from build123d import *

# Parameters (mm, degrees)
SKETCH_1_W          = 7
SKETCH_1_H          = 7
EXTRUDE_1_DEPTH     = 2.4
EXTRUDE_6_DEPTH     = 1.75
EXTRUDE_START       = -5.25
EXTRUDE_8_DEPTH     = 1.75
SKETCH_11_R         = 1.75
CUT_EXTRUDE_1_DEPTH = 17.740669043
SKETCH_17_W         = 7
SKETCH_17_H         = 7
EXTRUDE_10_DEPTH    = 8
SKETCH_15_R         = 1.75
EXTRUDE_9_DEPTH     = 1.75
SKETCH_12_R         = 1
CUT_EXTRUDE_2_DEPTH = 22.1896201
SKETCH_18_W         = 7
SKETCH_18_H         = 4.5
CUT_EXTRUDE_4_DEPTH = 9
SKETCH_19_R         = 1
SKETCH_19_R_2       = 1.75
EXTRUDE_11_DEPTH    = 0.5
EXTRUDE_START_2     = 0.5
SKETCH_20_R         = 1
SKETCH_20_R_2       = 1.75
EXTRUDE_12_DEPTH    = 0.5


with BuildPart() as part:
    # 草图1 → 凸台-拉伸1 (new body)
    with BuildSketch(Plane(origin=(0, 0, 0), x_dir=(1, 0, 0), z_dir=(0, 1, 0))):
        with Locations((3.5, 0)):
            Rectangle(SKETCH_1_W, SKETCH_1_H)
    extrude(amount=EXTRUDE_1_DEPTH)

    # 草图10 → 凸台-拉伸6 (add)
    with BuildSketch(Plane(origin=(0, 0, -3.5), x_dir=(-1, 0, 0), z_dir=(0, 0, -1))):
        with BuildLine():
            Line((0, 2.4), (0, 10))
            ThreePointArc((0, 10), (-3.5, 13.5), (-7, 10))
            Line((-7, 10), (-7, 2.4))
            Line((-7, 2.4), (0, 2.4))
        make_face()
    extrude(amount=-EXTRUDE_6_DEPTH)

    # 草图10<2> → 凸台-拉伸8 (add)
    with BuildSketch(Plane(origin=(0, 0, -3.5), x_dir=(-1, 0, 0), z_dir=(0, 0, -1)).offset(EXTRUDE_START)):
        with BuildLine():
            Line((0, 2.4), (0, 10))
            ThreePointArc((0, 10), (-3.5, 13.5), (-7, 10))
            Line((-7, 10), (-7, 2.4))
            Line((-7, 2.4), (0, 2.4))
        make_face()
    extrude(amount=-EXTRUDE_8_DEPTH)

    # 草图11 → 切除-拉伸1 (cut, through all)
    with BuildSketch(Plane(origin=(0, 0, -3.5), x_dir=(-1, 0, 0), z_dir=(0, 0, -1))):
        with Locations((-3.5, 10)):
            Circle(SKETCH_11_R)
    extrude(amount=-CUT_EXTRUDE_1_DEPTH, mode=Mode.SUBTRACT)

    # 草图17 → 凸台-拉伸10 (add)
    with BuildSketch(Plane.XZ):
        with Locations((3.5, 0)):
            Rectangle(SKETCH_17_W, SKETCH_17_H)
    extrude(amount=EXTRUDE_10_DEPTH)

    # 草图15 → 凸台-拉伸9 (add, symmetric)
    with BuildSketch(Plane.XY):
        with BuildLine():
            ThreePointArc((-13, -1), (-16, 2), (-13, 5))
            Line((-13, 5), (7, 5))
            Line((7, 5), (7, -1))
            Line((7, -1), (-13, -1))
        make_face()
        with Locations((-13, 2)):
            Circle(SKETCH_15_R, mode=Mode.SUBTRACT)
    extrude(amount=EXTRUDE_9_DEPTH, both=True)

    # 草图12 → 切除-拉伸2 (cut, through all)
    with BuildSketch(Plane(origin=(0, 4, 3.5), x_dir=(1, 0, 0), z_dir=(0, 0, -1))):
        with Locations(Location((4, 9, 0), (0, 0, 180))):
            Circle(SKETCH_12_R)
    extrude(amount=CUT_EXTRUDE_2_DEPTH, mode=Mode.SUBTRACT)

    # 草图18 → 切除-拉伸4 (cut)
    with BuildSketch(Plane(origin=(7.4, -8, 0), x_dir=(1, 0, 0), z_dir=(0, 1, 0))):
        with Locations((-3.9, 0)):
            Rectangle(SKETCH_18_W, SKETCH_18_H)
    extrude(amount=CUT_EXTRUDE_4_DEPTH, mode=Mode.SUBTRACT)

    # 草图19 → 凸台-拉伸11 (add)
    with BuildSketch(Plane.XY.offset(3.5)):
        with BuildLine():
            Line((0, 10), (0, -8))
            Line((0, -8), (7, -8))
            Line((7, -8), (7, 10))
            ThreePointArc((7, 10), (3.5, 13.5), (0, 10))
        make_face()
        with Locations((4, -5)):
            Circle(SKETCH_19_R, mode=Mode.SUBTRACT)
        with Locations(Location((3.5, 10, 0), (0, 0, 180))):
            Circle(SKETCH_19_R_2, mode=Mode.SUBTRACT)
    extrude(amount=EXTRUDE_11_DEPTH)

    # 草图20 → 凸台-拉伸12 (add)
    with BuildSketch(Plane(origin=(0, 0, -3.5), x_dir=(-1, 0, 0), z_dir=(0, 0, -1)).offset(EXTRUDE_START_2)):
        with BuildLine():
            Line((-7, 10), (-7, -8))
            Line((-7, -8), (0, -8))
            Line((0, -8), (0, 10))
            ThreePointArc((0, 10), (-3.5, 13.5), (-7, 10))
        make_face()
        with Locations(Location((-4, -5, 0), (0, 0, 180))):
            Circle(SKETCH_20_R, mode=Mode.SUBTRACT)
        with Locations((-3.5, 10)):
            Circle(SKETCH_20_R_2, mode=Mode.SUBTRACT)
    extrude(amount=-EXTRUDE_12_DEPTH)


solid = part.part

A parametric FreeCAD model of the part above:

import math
import FreeCAD as App
import Part
import Sketcher


def add_polygon(sketch, points):
    """Adds a closed chain of lines whose ends are joined by coincident constraints."""
    first, n = sketch.GeometryCount, len(points)
    for a, b in zip(points, points[1:] + points[:1]):
        sketch.addGeometry(Part.LineSegment(App.Vector(*a, 0), App.Vector(*b, 0)), False)
    for i in range(n):
        sketch.addConstraint(Sketcher.Constraint("Coincident", first + i, 2, first + (i + 1) % n, 1))

doc = App.newDocument("Part")
params = doc.addObject("Spreadsheet::Sheet", "Params")
for row, (alias, value) in enumerate([
    ("sketch1_width", "7 mm"),
    ("pad1_length", "2.4 mm"),
    ("sketch2_radius", "3.5 mm"),
    ("sketch2_height", "7.6 mm"),
    ("pad2_length", "1.75 mm"),
    ("sketch3_radius", "3.5 mm"),
    ("sketch3_height", "7.6 mm"),
    ("pad3_length", "1.75 mm"),
    ("sketch4_diameter", "3.5 mm"),
    ("sketch5_width", "7 mm"),
    ("pad4_length", "8 mm"),
    ("sketch6_radius", "3 mm"),
    ("sketch6_diameter", "3.5 mm"),
    ("sketch6_width", "20 mm"),
    ("pad5_length", "3.5 mm"),
    ("sketch7_diameter", "2 mm"),
    ("sketch8_width", "7 mm"),
    ("sketch8_height", "4.5 mm"),
    ("pocket3_length", "9 mm"),
    ("sketch9_diameter", "2 mm"),
    ("sketch9_diameter2", "3.5 mm"),
    ("sketch9_radius", "3.5 mm"),
    ("sketch9_height", "18 mm"),
    ("pad6_length", "0.5 mm"),
    ("sketch10_diameter", "2 mm"),
    ("sketch10_diameter2", "3.5 mm"),
    ("sketch10_radius", "3.5 mm"),
    ("sketch10_height", "18 mm"),
    ("pad7_length", "0.5 mm"),
], start=1):
    params.set(f"A{row}", alias)
    params.set(f"B{row}", "=" + value)
    params.setAlias(f"B{row}", alias)

body = doc.addObject("PartDesign::Body", "Body")

# Sketch on XZ plane
sketch1 = doc.addObject("Sketcher::SketchObject", "Sketch")
body.addObject(sketch1)
sketch1.AttachmentSupport = (doc.XZ_Plane, [""])
sketch1.MapMode = "FlatFace"
add_polygon(sketch1, [(0, -4), (0, 4), (7, 4), (7, -4)])  # lines 0-3
sketch1.addConstraint([
    Sketcher.Constraint("Vertical", 0),
    Sketcher.Constraint("Horizontal", 1),
    Sketcher.Constraint("Vertical", 2),
    Sketcher.Constraint("Horizontal", 3),
    Sketcher.Constraint("Symmetric", 0, 2, 3, 2, -1, 1),
    Sketcher.Constraint("Equal", 3, 0),
    Sketcher.Constraint("DistanceX", 1, 1, 1, 2, 7.0),
])
sketch1.setExpression("Constraints[10]", "Params.sketch1_width")
pad1 = doc.addObject("PartDesign::Pad", "Pad")
body.addObject(pad1)
pad1.Profile = sketch1
pad1.setExpression("Length", "Params.pad1_length")
pad1.Reversed = True

# Sketch on XY plane
sketch2 = doc.addObject("Sketcher::SketchObject", "Sketch001")
body.addObject(sketch2)
sketch2.AttachmentSupport = (doc.XY_Plane, [""])
sketch2.MapMode = "FlatFace"
sketch2.AttachmentOffset = App.Placement(App.Vector(0, 0, -3.5), App.Rotation())
sketch2.addGeometry([
    Part.LineSegment(App.Vector(0, 2.4, 0), App.Vector(0, 10, 0)),
    Part.ArcOfCircle(Part.Circle(App.Vector(3.5, 10, 0), App.Vector(0, 0, 1), 3.5), math.radians(0), math.radians(180)),
    Part.LineSegment(App.Vector(7, 10, 0), App.Vector(7, 2.4, 0)),
    Part.LineSegment(App.Vector(7, 2.4, 0), App.Vector(0, 2.4, 0)),
], False)
sketch2.addConstraint([
    Sketcher.Constraint("Tangent", 0, 2, 1, 2),
    Sketcher.Constraint("Tangent", 1, 1, 2, 1),
    Sketcher.Constraint("Coincident", 2, 2, 3, 1),
    Sketcher.Constraint("Coincident", 3, 2, 0, 1),
    Sketcher.Constraint("Vertical", 0),
    Sketcher.Constraint("Vertical", 2),
    Sketcher.Constraint("Horizontal", 3),
    Sketcher.Constraint("PointOnObject", 0, 2, -2),
    Sketcher.Constraint("Radius", 1, 3.5),
    Sketcher.Constraint("DistanceY", 0, 1, 0, 2, 7.6),
    Sketcher.Constraint("DistanceY", -1, 1, 1, 3, 10.0),
])
sketch2.setExpression("Constraints[8]", "Params.sketch2_radius")
sketch2.setExpression("Constraints[9]", "Params.sketch2_height")
pad2 = doc.addObject("PartDesign::Pad", "Pad001")
body.addObject(pad2)
pad2.Profile = sketch2
pad2.setExpression("Length", "Params.pad2_length")

# Sketch on XY plane
sketch3 = doc.addObject("Sketcher::SketchObject", "Sketch002")
body.addObject(sketch3)
sketch3.AttachmentSupport = (doc.XY_Plane, [""])
sketch3.MapMode = "FlatFace"
sketch3.AttachmentOffset = App.Placement(App.Vector(0, 0, 1.75), App.Rotation())
sketch3.addGeometry([
    Part.LineSegment(App.Vector(0, 2.4, 0), App.Vector(0, 10, 0)),
    Part.ArcOfCircle(Part.Circle(App.Vector(3.5, 10, 0), App.Vector(0, 0, 1), 3.5), math.radians(0), math.radians(180)),
    Part.LineSegment(App.Vector(7, 10, 0), App.Vector(7, 2.4, 0)),
    Part.LineSegment(App.Vector(7, 2.4, 0), App.Vector(0, 2.4, 0)),
], False)
sketch3.addConstraint([
    Sketcher.Constraint("Tangent", 0, 2, 1, 2),
    Sketcher.Constraint("Tangent", 1, 1, 2, 1),
    Sketcher.Constraint("Coincident", 2, 2, 3, 1),
    Sketcher.Constraint("Coincident", 3, 2, 0, 1),
    Sketcher.Constraint("Vertical", 0),
    Sketcher.Constraint("Vertical", 2),
    Sketcher.Constraint("Horizontal", 3),
    Sketcher.Constraint("PointOnObject", 0, 2, -2),
    Sketcher.Constraint("Radius", 1, 3.5),
    Sketcher.Constraint("DistanceY", 0, 1, 0, 2, 7.6),
    Sketcher.Constraint("DistanceY", -1, 1, 1, 3, 10.0),
])
sketch3.setExpression("Constraints[8]", "Params.sketch3_radius")
sketch3.setExpression("Constraints[9]", "Params.sketch3_height")
pad3 = doc.addObject("PartDesign::Pad", "Pad002")
body.addObject(pad3)
pad3.Profile = sketch3
pad3.setExpression("Length", "Params.pad3_length")

# Sketch on XY plane
sketch4 = doc.addObject("Sketcher::SketchObject", "Sketch003")
body.addObject(sketch4)
sketch4.AttachmentSupport = (doc.XY_Plane, [""])
sketch4.MapMode = "FlatFace"
sketch4.AttachmentOffset = App.Placement(App.Vector(0, 0, -3.5), App.Rotation())
sketch4.addGeometry(Part.Circle(App.Vector(3.5, 10, 0), App.Vector(0, 0, 1), 1.8), False)
sketch4.addConstraint([
    Sketcher.Constraint("Diameter", 0, 3.5),
    Sketcher.Constraint("DistanceY", -1, 1, 0, 3, 10.0),
    Sketcher.Constraint("DistanceX", -1, 1, 0, 3, 3.5),
])
sketch4.setExpression("Constraints[0]", "Params.sketch4_diameter")
pocket1 = doc.addObject("PartDesign::Pocket", "Pocket")
body.addObject(pocket1)
pocket1.Profile = sketch4
pocket1.Type = "ThroughAll"
pocket1.Reversed = True

# Sketch on XZ plane
sketch5 = doc.addObject("Sketcher::SketchObject", "Sketch004")
body.addObject(sketch5)
sketch5.AttachmentSupport = (doc.XZ_Plane, [""])
sketch5.MapMode = "FlatFace"
add_polygon(sketch5, [(0, 4), (0, -4), (7, -4), (7, 4)])  # lines 0-3
sketch5.addConstraint([
    Sketcher.Constraint("Vertical", 0),
    Sketcher.Constraint("Horizontal", 1),
    Sketcher.Constraint("Vertical", 2),
    Sketcher.Constraint("Horizontal", 3),
    Sketcher.Constraint("Symmetric", 0, 2, 3, 2, -1, 1),
    Sketcher.Constraint("Equal", 3, 0),
    Sketcher.Constraint("DistanceX", 1, 1, 1, 2, 7.0),
])
sketch5.setExpression("Constraints[10]", "Params.sketch5_width")
pad4 = doc.addObject("PartDesign::Pad", "Pad003")
body.addObject(pad4)
pad4.Profile = sketch5
pad4.setExpression("Length", "Params.pad4_length")

# Sketch on XY plane
sketch6 = doc.addObject("Sketcher::SketchObject", "Sketch005")
body.addObject(sketch6)
sketch6.AttachmentSupport = (doc.XY_Plane, [""])
sketch6.MapMode = "FlatFace"
sketch6.addGeometry([
    Part.ArcOfCircle(Part.Circle(App.Vector(-13, 2, 0), App.Vector(0, 0, 1), 3), math.radians(90), math.radians(270)),  # 0
    Part.LineSegment(App.Vector(-13, -1, 0), App.Vector(7, -1, 0)),  # 1
    Part.LineSegment(App.Vector(7, -1, 0), App.Vector(7, 5, 0)),  # 2
    Part.LineSegment(App.Vector(7, 5, 0), App.Vector(-13, 5, 0)),  # 3
    Part.Circle(App.Vector(-13, 2, 0), App.Vector(0, 0, 1), 1.8),  # 4
], False)
sketch6.addConstraint([
    Sketcher.Constraint("Tangent", 0, 2, 1, 1),
    Sketcher.Constraint("Coincident", 1, 2, 2, 1),
    Sketcher.Constraint("Coincident", 2, 2, 3, 1),
    Sketcher.Constraint("Tangent", 3, 2, 0, 1),
    Sketcher.Constraint("Horizontal", 1),
    Sketcher.Constraint("Vertical", 2),
    Sketcher.Constraint("Horizontal", 3),
    Sketcher.Constraint("Coincident", 4, 3, 0, 3),
    Sketcher.Constraint("Radius", 0, 3.0),
    Sketcher.Constraint("Diameter", 4, 3.5),
    Sketcher.Constraint("DistanceX", 1, 1, 1, 2, 20.0),
    Sketcher.Constraint("DistanceX", 0, 3, -1, 1, 13.0),
    Sketcher.Constraint("DistanceY", -1, 1, 0, 3, 2.0),
])
sketch6.setExpression("Constraints[8]", "Params.sketch6_radius")
sketch6.setExpression("Constraints[9]", "Params.sketch6_diameter")
sketch6.setExpression("Constraints[10]", "Params.sketch6_width")
pad5 = doc.addObject("PartDesign::Pad", "Pad004")
body.addObject(pad5)
pad5.Profile = sketch6
pad5.setExpression("Length", "Params.pad5_length")
pad5.Midplane = True

# Sketch on XY plane
sketch7 = doc.addObject("Sketcher::SketchObject", "Sketch006")
body.addObject(sketch7)
sketch7.AttachmentSupport = (doc.XY_Plane, [""])
sketch7.MapMode = "FlatFace"
sketch7.AttachmentOffset = App.Placement(App.Vector(0, 0, 3.5), App.Rotation())
sketch7.addGeometry(Part.Circle(App.Vector(4, -5, 0), App.Vector(0, 0, 1), 1), False)
sketch7.addConstraint([
    Sketcher.Constraint("Diameter", 0, 2.0),
    Sketcher.Constraint("DistanceX", -1, 1, 0, 3, 4.0),
    Sketcher.Constraint("DistanceY", 0, 3, -1, 1, 5.0),
])
sketch7.setExpression("Constraints[0]", "Params.sketch7_diameter")
pocket2 = doc.addObject("PartDesign::Pocket", "Pocket001")
body.addObject(pocket2)
pocket2.Profile = sketch7
pocket2.Type = "ThroughAll"

# Sketch on XZ plane
sketch8 = doc.addObject("Sketcher::SketchObject", "Sketch007")
body.addObject(sketch8)
sketch8.AttachmentSupport = (doc.XZ_Plane, [""])
sketch8.MapMode = "FlatFace"
sketch8.AttachmentOffset = App.Placement(App.Vector(0, 0, 8), App.Rotation())
add_polygon(sketch8, [(0, -2.2), (0, 2.2), (7, 2.2), (7, -2.2)])  # lines 0-3
sketch8.addConstraint([
    Sketcher.Constraint("Vertical", 0),
    Sketcher.Constraint("Horizontal", 1),
    Sketcher.Constraint("Vertical", 2),
    Sketcher.Constraint("Horizontal", 3),
    Sketcher.Constraint("Symmetric", 0, 2, 3, 2, -1, 1),
    Sketcher.Constraint("DistanceX", 1, 1, 1, 2, 7.0),
    Sketcher.Constraint("DistanceY", 0, 1, 0, 2, 4.5),
])
sketch8.setExpression("Constraints[9]", "Params.sketch8_width")
sketch8.setExpression("Constraints[10]", "Params.sketch8_height")
pocket3 = doc.addObject("PartDesign::Pocket", "Pocket002")
body.addObject(pocket3)
pocket3.Profile = sketch8
pocket3.setExpression("Length", "Params.pocket3_length")

# Sketch on XY plane
sketch9 = doc.addObject("Sketcher::SketchObject", "Sketch008")
body.addObject(sketch9)
sketch9.AttachmentSupport = (doc.XY_Plane, [""])
sketch9.MapMode = "FlatFace"
sketch9.AttachmentOffset = App.Placement(App.Vector(0, 0, 3.5), App.Rotation())
sketch9.addGeometry([
    Part.LineSegment(App.Vector(0, 10, 0), App.Vector(0, -8, 0)),  # 0
    Part.LineSegment(App.Vector(0, -8, 0), App.Vector(7, -8, 0)),  # 1
    Part.LineSegment(App.Vector(7, -8, 0), App.Vector(7, 10, 0)),  # 2
    Part.ArcOfCircle(Part.Circle(App.Vector(3.5, 10, 0), App.Vector(0, 0, 1), 3.5), math.radians(0), math.radians(180)),  # 3
    Part.Circle(App.Vector(4, -5, 0), App.Vector(0, 0, 1), 1),  # 4
    Part.Circle(App.Vector(3.5, 10, 0), App.Vector(0, 0, 1), 1.8),  # 5
], False)
sketch9.addConstraint([
    Sketcher.Constraint("Coincident", 0, 2, 1, 1),
    Sketcher.Constraint("Coincident", 1, 2, 2, 1),
    Sketcher.Constraint("Tangent", 2, 2, 3, 1),
    Sketcher.Constraint("Tangent", 3, 2, 0, 1),
    Sketcher.Constraint("Vertical", 0),
    Sketcher.Constraint("Horizontal", 1),
    Sketcher.Constraint("Vertical", 2),
    Sketcher.Constraint("Coincident", 5, 3, 3, 3),
    Sketcher.Constraint("PointOnObject", 0, 2, -2),
    Sketcher.Constraint("Diameter", 4, 2.0),
    Sketcher.Constraint("Diameter", 5, 3.5),
    Sketcher.Constraint("Radius", 3, 3.5),
    Sketcher.Constraint("DistanceY", 0, 2, 0, 1, 18.0),
    Sketcher.Constraint("DistanceY", -1, 1, 3, 3, 10.0),
    Sketcher.Constraint("DistanceX", -1, 1, 4, 3, 4.0),
    Sketcher.Constraint("DistanceY", 4, 3, -1, 1, 5.0),
])
sketch9.setExpression("Constraints[9]", "Params.sketch9_diameter")
sketch9.setExpression("Constraints[10]", "Params.sketch9_diameter2")
sketch9.setExpression("Constraints[11]", "Params.sketch9_radius")
sketch9.setExpression("Constraints[12]", "Params.sketch9_height")
pad6 = doc.addObject("PartDesign::Pad", "Pad005")
body.addObject(pad6)
pad6.Profile = sketch9
pad6.setExpression("Length", "Params.pad6_length")

# Sketch on XY plane
sketch10 = doc.addObject("Sketcher::SketchObject", "Sketch009")
body.addObject(sketch10)
sketch10.AttachmentSupport = (doc.XY_Plane, [""])
sketch10.MapMode = "FlatFace"
sketch10.AttachmentOffset = App.Placement(App.Vector(0, 0, -4), App.Rotation())
sketch10.addGeometry([
    Part.LineSegment(App.Vector(7, 10, 0), App.Vector(7, -8, 0)),  # 0
    Part.LineSegment(App.Vector(7, -8, 0), App.Vector(0, -8, 0)),  # 1
    Part.LineSegment(App.Vector(0, -8, 0), App.Vector(0, 10, 0)),  # 2
    Part.ArcOfCircle(Part.Circle(App.Vector(3.5, 10, 0), App.Vector(0, 0, 1), 3.5), math.radians(0), math.radians(180)),  # 3
    Part.Circle(App.Vector(4, -5, 0), App.Vector(0, 0, 1), 1),  # 4
    Part.Circle(App.Vector(3.5, 10, 0), App.Vector(0, 0, 1), 1.8),  # 5
], False)
sketch10.addConstraint([
    Sketcher.Constraint("Coincident", 0, 2, 1, 1),
    Sketcher.Constraint("Coincident", 1, 2, 2, 1),
    Sketcher.Constraint("Tangent", 2, 2, 3, 2),
    Sketcher.Constraint("Tangent", 3, 1, 0, 1),
    Sketcher.Constraint("Vertical", 0),
    Sketcher.Constraint("Horizontal", 1),
    Sketcher.Constraint("Vertical", 2),
    Sketcher.Constraint("Coincident", 5, 3, 3, 3),
    Sketcher.Constraint("PointOnObject", 1, 2, -2),
    Sketcher.Constraint("Diameter", 4, 2.0),
    Sketcher.Constraint("Diameter", 5, 3.5),
    Sketcher.Constraint("Radius", 3, 3.5),
    Sketcher.Constraint("DistanceY", 0, 2, 0, 1, 18.0),
    Sketcher.Constraint("DistanceY", -1, 1, 3, 3, 10.0),
    Sketcher.Constraint("DistanceX", -1, 1, 4, 3, 4.0),
    Sketcher.Constraint("DistanceY", 4, 3, -1, 1, 5.0),
])
sketch10.setExpression("Constraints[9]", "Params.sketch10_diameter")
sketch10.setExpression("Constraints[10]", "Params.sketch10_diameter2")
sketch10.setExpression("Constraints[11]", "Params.sketch10_radius")
sketch10.setExpression("Constraints[12]", "Params.sketch10_height")
pad7 = doc.addObject("PartDesign::Pad", "Pad006")
body.addObject(pad7)
pad7.Profile = sketch10
pad7.setExpression("Length", "Params.pad7_length")

doc.recompute()
